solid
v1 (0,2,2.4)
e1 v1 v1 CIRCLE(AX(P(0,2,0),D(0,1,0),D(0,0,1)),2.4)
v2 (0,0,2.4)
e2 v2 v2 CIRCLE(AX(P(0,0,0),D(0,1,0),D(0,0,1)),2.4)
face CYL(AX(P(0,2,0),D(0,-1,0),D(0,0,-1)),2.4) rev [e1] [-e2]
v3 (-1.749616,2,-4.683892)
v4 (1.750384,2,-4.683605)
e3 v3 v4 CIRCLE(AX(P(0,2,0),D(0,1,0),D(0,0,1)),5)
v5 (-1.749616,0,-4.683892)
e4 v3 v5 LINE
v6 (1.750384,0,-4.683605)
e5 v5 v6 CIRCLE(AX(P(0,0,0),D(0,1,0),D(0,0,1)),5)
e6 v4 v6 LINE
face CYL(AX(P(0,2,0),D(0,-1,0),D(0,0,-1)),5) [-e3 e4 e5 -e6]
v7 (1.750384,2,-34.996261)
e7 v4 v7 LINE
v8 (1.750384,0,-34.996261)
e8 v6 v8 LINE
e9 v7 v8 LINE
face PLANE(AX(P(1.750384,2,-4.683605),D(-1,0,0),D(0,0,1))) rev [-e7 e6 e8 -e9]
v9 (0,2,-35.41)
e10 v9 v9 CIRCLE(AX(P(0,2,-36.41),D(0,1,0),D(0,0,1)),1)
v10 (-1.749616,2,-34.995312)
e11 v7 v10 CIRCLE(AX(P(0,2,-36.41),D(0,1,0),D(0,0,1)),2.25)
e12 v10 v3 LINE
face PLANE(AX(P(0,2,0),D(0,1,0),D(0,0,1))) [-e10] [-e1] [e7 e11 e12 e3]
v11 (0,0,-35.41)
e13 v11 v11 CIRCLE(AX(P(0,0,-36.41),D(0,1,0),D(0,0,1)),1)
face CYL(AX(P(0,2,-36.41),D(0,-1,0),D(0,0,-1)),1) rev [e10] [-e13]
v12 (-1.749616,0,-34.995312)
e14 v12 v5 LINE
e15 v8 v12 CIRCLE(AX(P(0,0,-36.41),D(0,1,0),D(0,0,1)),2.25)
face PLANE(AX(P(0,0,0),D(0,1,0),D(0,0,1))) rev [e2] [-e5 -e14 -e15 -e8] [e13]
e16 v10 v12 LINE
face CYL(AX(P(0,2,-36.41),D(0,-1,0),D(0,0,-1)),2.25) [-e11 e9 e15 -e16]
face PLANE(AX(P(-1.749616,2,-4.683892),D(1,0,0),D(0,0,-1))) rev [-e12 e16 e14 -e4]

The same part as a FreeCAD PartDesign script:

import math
import FreeCAD as App
import Part
import Sketcher
from FreeCAD import Vector

doc = App.newDocument("Part")
body = doc.addObject("PartDesign::Body", "Body")

sketch1 = body.newObject("Sketcher::SketchObject", "Sketch")
sketch1.AttachmentSupport = (doc.getObject("XZ_Plane"), [""])
sketch1.MapMode = "FlatFace"
sketch1.addGeometry([
    Part.LineSegment(Vector(-1.749616, -34.995312, 0), Vector(-1.749616, -4.683892, 0)),
    Part.ArcOfCircle(Part.Circle(Vector(0, 0, 0), Vector(0, 0, 1), 5), math.radians(-69.507991), math.radians(249.517379)),
    Part.LineSegment(Vector(1.750384, -4.683605, 0), Vector(1.750384, -34.996261, 0)),
    Part.ArcOfCircle(Part.Circle(Vector(0, -36.41, 0), Vector(0, 0, 1), 2.25), math.radians(141.042015), math.radians(398.926892)),
    Part.Circle(Vector(0, 0, 0), Vector(0, 0, 1), 2.4),
    Part.Circle(Vector(0, -36.41, 0), Vector(0, 0, 1), 1),
], False)
sketch1.addConstraint([
    Sketcher.Constraint("Coincident", 0, 2, 1, 2),
    Sketcher.Constraint("Coincident", 1, 1, 2, 1),
    Sketcher.Constraint("Coincident", 2, 2, 3, 2),
    Sketcher.Constraint("Coincident", 3, 1, 0, 1),
    Sketcher.Constraint("Vertical", 0),
    Sketcher.Constraint("Vertical", 2),
    Sketcher.Constraint("Coincident", 1, 3, -1, 1),
    Sketcher.Constraint("Coincident", 4, 3, -1, 1),
    Sketcher.Constraint("Coincident", 5, 3, 3, 3),
    Sketcher.Constraint("PointOnObject", 3, 3, -2),
    Sketcher.Constraint("Diameter", 5, 2.0),
    Sketcher.Constraint("Radius", 1, 5.0),
    Sketcher.Constraint("Diameter", 4, 4.8),
    Sketcher.Constraint("Radius", 3, 2.25),
    Sketcher.Constraint("DistanceX", 0, 2, 1, 1, 3.5),
    Sketcher.Constraint("DistanceY", 3, 3, -1, 1, 36.41),
    Sketcher.Constraint("DistanceY", 0, 1, 0, 2, 30.31142),
])
pad1 = body.newObject("PartDesign::Pad", "Pad")
pad1.Profile = sketch1
pad1.Length = 2
pad1.Reversed = True

doc.recompute()
